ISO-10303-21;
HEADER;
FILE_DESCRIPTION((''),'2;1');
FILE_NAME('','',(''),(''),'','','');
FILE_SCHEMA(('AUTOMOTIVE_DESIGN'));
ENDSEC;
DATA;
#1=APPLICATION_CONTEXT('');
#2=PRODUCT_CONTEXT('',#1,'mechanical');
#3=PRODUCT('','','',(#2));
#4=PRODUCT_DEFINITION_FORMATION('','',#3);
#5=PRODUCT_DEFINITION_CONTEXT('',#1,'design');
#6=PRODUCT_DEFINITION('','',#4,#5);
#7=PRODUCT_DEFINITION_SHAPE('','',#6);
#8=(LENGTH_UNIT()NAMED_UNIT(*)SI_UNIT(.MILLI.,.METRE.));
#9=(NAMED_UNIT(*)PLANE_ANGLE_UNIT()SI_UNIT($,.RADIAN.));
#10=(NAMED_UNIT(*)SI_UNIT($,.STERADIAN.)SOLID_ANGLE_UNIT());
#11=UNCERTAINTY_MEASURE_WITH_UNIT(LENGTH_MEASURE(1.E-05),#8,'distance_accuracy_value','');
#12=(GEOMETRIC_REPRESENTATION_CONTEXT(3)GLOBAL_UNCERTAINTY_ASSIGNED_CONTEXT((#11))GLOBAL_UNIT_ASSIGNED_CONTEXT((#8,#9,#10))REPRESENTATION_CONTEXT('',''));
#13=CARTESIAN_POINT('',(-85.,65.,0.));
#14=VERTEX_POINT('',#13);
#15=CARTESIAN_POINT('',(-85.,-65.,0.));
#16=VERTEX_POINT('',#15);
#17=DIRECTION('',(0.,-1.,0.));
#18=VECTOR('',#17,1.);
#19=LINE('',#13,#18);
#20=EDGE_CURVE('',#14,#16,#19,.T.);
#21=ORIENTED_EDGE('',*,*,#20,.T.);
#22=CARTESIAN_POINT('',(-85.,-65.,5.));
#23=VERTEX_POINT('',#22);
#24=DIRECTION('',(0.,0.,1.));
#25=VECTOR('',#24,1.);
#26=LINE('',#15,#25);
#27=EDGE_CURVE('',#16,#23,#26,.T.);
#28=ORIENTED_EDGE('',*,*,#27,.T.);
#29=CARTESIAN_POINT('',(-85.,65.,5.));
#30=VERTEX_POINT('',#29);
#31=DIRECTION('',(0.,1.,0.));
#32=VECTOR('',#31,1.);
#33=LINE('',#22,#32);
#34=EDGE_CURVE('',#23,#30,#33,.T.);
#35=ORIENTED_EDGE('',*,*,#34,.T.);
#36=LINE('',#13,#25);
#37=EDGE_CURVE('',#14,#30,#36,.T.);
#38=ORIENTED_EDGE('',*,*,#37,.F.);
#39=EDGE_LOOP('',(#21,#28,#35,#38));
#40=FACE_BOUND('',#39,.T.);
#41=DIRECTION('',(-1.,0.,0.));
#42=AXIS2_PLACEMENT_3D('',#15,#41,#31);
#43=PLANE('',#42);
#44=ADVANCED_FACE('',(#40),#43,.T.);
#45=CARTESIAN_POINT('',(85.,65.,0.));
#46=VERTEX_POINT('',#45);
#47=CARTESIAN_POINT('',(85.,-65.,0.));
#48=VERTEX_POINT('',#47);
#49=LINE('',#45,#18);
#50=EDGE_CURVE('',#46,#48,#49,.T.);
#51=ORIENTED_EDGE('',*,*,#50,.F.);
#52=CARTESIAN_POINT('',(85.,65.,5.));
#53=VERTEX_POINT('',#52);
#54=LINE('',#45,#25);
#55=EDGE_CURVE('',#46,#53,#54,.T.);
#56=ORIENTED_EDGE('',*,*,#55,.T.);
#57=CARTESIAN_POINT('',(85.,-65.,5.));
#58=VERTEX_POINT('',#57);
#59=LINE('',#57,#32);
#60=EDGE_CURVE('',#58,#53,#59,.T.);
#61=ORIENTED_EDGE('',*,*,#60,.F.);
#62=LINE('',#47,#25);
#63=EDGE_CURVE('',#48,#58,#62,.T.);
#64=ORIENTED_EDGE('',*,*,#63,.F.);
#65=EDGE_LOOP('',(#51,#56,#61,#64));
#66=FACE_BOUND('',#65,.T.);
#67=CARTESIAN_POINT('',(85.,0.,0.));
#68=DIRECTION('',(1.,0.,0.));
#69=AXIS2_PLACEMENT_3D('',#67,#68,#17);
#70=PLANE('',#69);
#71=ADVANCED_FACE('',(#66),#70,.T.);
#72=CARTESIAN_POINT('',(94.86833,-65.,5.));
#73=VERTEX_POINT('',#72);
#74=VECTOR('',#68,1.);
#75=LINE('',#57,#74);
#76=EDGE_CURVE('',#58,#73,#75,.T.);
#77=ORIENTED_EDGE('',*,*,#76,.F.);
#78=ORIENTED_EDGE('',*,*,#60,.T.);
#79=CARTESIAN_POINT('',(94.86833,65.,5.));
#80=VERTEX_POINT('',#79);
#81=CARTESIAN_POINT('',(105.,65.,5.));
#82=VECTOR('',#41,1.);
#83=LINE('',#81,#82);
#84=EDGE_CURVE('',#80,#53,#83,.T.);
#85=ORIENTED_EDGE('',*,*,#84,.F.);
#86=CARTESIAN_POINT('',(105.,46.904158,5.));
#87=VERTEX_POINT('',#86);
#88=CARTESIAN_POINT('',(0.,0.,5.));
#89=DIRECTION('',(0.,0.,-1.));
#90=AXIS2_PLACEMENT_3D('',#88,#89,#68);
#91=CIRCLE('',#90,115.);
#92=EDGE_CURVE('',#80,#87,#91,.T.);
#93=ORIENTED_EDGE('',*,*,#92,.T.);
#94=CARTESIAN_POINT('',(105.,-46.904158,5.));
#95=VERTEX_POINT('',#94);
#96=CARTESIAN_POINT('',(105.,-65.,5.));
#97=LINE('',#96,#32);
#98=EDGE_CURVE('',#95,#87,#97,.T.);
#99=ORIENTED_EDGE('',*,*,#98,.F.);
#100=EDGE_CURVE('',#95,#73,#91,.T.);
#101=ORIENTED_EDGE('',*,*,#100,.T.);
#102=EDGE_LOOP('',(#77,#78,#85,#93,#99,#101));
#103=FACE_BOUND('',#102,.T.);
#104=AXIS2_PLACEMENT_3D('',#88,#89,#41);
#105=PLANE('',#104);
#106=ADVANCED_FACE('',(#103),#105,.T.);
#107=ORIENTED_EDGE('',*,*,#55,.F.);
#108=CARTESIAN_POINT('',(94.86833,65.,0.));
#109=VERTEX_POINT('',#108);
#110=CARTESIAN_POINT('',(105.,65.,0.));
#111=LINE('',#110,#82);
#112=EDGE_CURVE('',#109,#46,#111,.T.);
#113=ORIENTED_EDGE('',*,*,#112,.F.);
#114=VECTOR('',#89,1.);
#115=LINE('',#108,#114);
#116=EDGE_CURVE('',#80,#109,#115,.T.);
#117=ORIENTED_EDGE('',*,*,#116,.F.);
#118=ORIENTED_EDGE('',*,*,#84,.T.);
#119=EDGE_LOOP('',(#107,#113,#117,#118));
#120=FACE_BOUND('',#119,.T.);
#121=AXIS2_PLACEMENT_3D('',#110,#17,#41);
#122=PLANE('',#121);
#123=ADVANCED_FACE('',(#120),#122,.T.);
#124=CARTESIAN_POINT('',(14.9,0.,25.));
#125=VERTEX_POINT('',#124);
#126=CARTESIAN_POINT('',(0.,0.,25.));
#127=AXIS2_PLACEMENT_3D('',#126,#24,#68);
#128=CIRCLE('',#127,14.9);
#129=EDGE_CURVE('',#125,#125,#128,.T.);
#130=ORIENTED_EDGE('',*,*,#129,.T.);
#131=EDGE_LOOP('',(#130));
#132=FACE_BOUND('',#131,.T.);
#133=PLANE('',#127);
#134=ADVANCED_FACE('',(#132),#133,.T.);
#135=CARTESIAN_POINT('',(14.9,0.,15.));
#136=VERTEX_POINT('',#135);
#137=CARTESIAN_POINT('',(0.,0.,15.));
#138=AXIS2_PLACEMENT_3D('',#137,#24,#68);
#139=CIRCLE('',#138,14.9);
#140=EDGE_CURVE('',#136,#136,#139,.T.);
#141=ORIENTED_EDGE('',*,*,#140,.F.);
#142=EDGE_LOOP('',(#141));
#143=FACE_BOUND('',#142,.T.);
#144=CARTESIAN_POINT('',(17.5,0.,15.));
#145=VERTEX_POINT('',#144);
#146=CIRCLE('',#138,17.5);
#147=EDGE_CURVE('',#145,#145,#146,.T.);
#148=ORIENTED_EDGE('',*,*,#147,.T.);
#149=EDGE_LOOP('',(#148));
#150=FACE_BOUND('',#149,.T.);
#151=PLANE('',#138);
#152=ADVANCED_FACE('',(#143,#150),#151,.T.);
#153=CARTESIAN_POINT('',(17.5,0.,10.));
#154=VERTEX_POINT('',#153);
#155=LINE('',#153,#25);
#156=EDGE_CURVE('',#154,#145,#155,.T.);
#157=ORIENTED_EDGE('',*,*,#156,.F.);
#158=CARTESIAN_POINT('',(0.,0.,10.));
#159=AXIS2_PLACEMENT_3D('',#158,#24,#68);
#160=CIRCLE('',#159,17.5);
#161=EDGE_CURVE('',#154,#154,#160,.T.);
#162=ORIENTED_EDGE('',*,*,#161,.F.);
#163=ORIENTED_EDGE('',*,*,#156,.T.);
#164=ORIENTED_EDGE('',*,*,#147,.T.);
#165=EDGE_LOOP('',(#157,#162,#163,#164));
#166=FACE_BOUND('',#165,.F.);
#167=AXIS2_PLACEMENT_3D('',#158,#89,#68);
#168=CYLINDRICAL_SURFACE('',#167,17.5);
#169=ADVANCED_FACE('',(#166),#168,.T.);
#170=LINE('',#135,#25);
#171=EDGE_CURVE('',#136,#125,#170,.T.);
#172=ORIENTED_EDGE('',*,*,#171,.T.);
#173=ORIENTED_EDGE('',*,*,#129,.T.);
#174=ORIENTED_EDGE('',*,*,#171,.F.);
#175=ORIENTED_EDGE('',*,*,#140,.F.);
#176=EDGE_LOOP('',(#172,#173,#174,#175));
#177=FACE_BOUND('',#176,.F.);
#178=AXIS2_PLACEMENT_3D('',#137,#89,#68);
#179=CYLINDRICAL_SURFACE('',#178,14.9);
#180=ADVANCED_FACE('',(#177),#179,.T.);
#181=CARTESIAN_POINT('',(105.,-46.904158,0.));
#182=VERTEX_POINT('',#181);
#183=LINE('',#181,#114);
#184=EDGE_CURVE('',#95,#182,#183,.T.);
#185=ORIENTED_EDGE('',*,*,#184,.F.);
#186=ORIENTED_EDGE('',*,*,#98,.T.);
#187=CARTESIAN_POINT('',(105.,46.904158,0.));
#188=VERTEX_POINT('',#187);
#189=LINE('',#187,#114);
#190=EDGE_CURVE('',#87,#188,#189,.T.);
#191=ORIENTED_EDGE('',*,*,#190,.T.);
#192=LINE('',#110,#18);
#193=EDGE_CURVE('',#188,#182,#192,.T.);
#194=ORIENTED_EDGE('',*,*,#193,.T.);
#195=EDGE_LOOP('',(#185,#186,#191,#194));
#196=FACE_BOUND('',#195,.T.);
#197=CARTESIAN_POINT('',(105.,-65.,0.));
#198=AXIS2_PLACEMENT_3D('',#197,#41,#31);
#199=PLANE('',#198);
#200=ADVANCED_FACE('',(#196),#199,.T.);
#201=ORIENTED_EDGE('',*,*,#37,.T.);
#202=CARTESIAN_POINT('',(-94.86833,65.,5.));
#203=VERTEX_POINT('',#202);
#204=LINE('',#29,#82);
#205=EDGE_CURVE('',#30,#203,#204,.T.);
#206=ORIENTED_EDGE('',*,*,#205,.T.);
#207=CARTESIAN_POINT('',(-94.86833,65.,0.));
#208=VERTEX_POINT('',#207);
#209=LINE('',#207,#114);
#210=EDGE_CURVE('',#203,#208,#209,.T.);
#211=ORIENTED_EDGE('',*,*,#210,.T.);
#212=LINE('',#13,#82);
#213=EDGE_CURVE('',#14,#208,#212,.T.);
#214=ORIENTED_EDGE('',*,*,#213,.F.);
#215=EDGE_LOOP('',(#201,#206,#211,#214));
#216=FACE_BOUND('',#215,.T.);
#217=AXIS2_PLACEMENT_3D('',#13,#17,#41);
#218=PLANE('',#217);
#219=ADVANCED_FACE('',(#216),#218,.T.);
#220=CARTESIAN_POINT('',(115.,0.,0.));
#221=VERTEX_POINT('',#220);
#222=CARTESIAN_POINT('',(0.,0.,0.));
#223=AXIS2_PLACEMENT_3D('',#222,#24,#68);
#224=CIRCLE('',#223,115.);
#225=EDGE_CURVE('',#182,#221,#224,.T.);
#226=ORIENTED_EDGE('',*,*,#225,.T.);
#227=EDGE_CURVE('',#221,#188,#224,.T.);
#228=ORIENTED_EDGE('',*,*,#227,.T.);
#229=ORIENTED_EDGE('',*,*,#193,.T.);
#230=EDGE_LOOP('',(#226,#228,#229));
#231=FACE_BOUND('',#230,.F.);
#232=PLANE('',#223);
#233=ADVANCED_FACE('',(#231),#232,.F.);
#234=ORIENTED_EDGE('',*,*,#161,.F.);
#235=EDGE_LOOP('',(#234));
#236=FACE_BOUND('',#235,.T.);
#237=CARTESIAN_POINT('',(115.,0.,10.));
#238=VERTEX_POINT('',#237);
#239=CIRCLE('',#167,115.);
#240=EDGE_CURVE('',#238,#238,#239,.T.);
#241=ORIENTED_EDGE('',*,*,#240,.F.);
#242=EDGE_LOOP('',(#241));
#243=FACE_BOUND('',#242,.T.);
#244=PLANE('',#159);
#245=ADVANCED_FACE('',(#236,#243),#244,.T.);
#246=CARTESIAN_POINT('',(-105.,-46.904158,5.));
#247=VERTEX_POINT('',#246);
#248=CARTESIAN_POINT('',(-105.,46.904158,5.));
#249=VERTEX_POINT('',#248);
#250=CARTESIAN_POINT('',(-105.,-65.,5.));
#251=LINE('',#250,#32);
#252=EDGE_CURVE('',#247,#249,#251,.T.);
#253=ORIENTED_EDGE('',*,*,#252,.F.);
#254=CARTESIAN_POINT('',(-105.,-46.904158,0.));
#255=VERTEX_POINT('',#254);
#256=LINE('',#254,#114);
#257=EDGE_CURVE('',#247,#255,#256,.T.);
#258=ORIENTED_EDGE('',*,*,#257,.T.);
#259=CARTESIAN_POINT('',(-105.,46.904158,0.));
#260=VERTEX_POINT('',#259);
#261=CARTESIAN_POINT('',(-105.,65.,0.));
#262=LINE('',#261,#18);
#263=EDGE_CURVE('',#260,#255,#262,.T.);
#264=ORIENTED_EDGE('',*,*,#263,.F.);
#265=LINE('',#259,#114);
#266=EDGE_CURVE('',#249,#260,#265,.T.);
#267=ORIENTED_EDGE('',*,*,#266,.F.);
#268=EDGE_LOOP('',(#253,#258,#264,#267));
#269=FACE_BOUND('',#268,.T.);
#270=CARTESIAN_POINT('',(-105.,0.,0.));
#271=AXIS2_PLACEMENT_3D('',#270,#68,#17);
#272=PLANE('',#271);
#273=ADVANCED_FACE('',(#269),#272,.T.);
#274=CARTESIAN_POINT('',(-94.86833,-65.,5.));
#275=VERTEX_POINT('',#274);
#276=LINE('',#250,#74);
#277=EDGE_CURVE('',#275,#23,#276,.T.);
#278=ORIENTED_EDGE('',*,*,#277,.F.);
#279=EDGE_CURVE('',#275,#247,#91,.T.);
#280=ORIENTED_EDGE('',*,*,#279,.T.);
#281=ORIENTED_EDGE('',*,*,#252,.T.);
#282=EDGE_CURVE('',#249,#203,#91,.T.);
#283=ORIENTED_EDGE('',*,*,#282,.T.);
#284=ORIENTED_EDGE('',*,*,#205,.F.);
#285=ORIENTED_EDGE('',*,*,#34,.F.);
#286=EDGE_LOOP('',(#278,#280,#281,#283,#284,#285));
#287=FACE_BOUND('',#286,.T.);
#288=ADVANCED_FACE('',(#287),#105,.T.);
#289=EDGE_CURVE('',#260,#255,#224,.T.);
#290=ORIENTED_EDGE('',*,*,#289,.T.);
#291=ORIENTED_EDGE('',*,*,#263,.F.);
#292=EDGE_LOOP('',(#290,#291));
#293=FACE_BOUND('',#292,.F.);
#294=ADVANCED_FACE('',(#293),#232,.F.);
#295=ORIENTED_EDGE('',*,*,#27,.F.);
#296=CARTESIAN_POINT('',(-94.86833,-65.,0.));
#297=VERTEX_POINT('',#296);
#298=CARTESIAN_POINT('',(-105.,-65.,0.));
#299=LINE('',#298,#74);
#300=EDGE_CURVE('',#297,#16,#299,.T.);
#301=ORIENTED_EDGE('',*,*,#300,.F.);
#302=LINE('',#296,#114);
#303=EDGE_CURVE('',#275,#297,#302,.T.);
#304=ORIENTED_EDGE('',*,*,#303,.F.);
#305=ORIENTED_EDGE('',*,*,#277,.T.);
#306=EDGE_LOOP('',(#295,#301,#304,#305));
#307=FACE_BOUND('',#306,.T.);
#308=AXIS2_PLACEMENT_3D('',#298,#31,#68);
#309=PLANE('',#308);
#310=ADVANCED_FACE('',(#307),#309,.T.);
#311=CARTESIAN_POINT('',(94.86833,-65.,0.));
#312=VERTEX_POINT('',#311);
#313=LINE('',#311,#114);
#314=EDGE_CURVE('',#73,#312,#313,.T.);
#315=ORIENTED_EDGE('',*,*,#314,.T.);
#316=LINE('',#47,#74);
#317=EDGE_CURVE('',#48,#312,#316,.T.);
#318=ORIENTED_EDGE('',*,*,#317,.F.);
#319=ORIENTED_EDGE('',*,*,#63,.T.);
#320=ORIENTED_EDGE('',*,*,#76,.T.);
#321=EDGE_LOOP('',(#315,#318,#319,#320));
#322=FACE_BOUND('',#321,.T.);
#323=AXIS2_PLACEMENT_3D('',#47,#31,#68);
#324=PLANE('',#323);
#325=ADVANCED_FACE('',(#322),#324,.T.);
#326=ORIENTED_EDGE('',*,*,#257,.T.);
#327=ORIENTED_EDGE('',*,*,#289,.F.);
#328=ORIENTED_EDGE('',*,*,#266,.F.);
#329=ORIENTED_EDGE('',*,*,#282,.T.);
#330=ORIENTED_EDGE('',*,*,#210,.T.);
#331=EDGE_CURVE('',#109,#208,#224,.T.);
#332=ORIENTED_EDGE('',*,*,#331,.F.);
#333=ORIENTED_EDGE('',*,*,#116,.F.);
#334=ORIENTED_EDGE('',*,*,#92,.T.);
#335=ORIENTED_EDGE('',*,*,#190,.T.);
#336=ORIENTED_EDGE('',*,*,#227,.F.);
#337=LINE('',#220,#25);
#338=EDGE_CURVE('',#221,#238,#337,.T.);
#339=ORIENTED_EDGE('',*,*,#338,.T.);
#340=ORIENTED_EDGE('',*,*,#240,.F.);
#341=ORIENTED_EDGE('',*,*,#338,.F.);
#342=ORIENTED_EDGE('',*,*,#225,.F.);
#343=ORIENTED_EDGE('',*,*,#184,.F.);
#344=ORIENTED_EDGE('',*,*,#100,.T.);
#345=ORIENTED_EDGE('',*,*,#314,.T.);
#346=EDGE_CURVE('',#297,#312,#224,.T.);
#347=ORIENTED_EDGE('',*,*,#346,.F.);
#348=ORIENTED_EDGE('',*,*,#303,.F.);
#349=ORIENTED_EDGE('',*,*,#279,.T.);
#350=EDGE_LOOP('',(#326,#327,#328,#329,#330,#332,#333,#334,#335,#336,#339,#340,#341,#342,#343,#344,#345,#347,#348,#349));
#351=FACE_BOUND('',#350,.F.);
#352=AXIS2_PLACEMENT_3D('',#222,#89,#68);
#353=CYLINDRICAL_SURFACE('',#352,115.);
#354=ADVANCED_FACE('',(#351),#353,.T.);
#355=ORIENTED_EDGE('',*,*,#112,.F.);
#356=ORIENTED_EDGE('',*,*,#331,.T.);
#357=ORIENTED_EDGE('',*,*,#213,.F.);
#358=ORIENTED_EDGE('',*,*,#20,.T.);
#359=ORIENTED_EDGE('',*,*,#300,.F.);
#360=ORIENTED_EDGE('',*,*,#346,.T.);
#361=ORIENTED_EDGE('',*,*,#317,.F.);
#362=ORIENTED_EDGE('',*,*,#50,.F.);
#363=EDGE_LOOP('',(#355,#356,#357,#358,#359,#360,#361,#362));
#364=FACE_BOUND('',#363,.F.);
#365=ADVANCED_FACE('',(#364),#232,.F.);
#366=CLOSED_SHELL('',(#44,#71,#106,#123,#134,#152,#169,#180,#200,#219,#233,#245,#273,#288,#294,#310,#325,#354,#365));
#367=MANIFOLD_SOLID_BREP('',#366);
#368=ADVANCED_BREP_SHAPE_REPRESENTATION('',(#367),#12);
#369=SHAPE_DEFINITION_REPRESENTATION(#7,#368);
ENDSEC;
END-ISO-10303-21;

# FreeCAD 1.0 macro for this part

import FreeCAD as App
import Part
import Sketcher

doc = App.newDocument("Part")
body = doc.addObject("PartDesign::Body", "Body")

sketch1 = doc.addObject("Sketcher::SketchObject", "Sketch")
body.addObject(sketch1)
sketch1.AttachmentSupport = (doc.XY_Plane, [""])
sketch1.MapMode = "FlatFace"
sketch1.addGeometry(Part.Circle(App.Vector(0, 0, 0), App.Vector(0, 0, 1), 115), False)
sketch1.addConstraint([
    Sketcher.Constraint("Coincident", 0, 3, -1, 1),
    Sketcher.Constraint("Diameter", 0, 230.0),
])
pad1 = doc.addObject("PartDesign::Pad", "Pad")
body.addObject(pad1)
pad1.Profile = sketch1
pad1.Length = 10

sketch2 = doc.addObject("Sketcher::SketchObject", "Sketch001")
body.addObject(sketch2)
sketch2.AttachmentSupport = (doc.XY_Plane, [""])
sketch2.MapMode = "FlatFace"
sketch2.AttachmentOffset = App.Placement(App.Vector(0, 0, 10), App.Rotation())
sketch2.addGeometry(Part.Circle(App.Vector(0, 0, 0), App.Vector(0, 0, 1), 18), False)
sketch2.addConstraint([
    Sketcher.Constraint("Coincident", 0, 3, -1, 1),
    Sketcher.Constraint("Diameter", 0, 35.0),
])
pad2 = doc.addObject("PartDesign::Pad", "Pad001")
body.addObject(pad2)
pad2.Profile = sketch2
pad2.Length = 5

sketch3 = doc.addObject("Sketcher::SketchObject", "Sketch002")
body.addObject(sketch3)
sketch3.AttachmentSupport = (doc.XY_Plane, [""])
sketch3.MapMode = "FlatFace"
sketch3.AttachmentOffset = App.Placement(App.Vector(0, 0, 15), App.Rotation())
sketch3.addGeometry(Part.Circle(App.Vector(0, 0, 0), App.Vector(0, 0, 1), 15), False)
sketch3.addConstraint([
    Sketcher.Constraint("Coincident", 0, 3, -1, 1),
    Sketcher.Constraint("Diameter", 0, 29.8),
])
pad3 = doc.addObject("PartDesign::Pad", "Pad002")
body.addObject(pad3)
pad3.Profile = sketch3
pad3.Length = 10

sketch4 = doc.addObject("Sketcher::SketchObject", "Sketch003")
body.addObject(sketch4)
sketch4.AttachmentSupport = (doc.XY_Plane, [""])
sketch4.MapMode = "FlatFace"
sketch4.addGeometry([
    Part.LineSegment(App.Vector(-105, -65, 0), App.Vector(-105, 65, 0)),
    Part.LineSegment(App.Vector(-105, 65, 0), App.Vector(-85, 65, 0)),
    Part.LineSegment(App.Vector(-85, 65, 0), App.Vector(-85, -65, 0)),
    Part.LineSegment(App.Vector(-85, -65, 0), App.Vector(-105, -65, 0)),
    Part.LineSegment(App.Vector(85, -65, 0), App.Vector(85, 65, 0)),
    Part.LineSegment(App.Vector(85, 65, 0), App.Vector(105, 65, 0)),
    Part.LineSegment(App.Vector(105, 65, 0), App.Vector(105, -65, 0)),
    Part.LineSegment(App.Vector(105, -65, 0), App.Vector(85, -65, 0)),
], False)
sketch4.addConstraint([
    Sketcher.Constraint("Coincident", 0, 2, 1, 1),
    Sketcher.Constraint("Coincident", 1, 2, 2, 1),
    Sketcher.Constraint("Coincident", 2, 2, 3, 1),
    Sketcher.Constraint("Coincident", 3, 2, 0, 1),
    Sketcher.Constraint("Coincident", 4, 2, 5, 1),
    Sketcher.Constraint("Coincident", 5, 2, 6, 1),
    Sketcher.Constraint("Coincident", 6, 2, 7, 1),
    Sketcher.Constraint("Coincident", 7, 2, 4, 1),
    Sketcher.Constraint("Vertical", 0),
    Sketcher.Constraint("Horizontal", 1),
    Sketcher.Constraint("Vertical", 2),
    Sketcher.Constraint("Horizontal", 3),
    Sketcher.Constraint("Vertical", 4),
    Sketcher.Constraint("Horizontal", 5),
    Sketcher.Constraint("Vertical", 6),
    Sketcher.Constraint("Horizontal", 7),
    Sketcher.Constraint("Symmetric", 2, 2, 4, 2, -1, 1),
    Sketcher.Constraint("Symmetric", 0, 2, 6, 2, -1, 1),
    Sketcher.Constraint("Horizontal", 1, 2, 4, 2),
    Sketcher.Constraint("DistanceX", 1, 1, 1, 2, 20.0),
    Sketcher.Constraint("DistanceY", 0, 1, 0, 2, 130.0),
    Sketcher.Constraint("DistanceX", 0, 2, -1, 1, 105.0),
])
pocket1 = doc.addObject("PartDesign::Pocket", "Pocket")
body.addObject(pocket1)
pocket1.Profile = sketch4
pocket1.Length = 5
pocket1.Reversed = True

doc.recompute()
